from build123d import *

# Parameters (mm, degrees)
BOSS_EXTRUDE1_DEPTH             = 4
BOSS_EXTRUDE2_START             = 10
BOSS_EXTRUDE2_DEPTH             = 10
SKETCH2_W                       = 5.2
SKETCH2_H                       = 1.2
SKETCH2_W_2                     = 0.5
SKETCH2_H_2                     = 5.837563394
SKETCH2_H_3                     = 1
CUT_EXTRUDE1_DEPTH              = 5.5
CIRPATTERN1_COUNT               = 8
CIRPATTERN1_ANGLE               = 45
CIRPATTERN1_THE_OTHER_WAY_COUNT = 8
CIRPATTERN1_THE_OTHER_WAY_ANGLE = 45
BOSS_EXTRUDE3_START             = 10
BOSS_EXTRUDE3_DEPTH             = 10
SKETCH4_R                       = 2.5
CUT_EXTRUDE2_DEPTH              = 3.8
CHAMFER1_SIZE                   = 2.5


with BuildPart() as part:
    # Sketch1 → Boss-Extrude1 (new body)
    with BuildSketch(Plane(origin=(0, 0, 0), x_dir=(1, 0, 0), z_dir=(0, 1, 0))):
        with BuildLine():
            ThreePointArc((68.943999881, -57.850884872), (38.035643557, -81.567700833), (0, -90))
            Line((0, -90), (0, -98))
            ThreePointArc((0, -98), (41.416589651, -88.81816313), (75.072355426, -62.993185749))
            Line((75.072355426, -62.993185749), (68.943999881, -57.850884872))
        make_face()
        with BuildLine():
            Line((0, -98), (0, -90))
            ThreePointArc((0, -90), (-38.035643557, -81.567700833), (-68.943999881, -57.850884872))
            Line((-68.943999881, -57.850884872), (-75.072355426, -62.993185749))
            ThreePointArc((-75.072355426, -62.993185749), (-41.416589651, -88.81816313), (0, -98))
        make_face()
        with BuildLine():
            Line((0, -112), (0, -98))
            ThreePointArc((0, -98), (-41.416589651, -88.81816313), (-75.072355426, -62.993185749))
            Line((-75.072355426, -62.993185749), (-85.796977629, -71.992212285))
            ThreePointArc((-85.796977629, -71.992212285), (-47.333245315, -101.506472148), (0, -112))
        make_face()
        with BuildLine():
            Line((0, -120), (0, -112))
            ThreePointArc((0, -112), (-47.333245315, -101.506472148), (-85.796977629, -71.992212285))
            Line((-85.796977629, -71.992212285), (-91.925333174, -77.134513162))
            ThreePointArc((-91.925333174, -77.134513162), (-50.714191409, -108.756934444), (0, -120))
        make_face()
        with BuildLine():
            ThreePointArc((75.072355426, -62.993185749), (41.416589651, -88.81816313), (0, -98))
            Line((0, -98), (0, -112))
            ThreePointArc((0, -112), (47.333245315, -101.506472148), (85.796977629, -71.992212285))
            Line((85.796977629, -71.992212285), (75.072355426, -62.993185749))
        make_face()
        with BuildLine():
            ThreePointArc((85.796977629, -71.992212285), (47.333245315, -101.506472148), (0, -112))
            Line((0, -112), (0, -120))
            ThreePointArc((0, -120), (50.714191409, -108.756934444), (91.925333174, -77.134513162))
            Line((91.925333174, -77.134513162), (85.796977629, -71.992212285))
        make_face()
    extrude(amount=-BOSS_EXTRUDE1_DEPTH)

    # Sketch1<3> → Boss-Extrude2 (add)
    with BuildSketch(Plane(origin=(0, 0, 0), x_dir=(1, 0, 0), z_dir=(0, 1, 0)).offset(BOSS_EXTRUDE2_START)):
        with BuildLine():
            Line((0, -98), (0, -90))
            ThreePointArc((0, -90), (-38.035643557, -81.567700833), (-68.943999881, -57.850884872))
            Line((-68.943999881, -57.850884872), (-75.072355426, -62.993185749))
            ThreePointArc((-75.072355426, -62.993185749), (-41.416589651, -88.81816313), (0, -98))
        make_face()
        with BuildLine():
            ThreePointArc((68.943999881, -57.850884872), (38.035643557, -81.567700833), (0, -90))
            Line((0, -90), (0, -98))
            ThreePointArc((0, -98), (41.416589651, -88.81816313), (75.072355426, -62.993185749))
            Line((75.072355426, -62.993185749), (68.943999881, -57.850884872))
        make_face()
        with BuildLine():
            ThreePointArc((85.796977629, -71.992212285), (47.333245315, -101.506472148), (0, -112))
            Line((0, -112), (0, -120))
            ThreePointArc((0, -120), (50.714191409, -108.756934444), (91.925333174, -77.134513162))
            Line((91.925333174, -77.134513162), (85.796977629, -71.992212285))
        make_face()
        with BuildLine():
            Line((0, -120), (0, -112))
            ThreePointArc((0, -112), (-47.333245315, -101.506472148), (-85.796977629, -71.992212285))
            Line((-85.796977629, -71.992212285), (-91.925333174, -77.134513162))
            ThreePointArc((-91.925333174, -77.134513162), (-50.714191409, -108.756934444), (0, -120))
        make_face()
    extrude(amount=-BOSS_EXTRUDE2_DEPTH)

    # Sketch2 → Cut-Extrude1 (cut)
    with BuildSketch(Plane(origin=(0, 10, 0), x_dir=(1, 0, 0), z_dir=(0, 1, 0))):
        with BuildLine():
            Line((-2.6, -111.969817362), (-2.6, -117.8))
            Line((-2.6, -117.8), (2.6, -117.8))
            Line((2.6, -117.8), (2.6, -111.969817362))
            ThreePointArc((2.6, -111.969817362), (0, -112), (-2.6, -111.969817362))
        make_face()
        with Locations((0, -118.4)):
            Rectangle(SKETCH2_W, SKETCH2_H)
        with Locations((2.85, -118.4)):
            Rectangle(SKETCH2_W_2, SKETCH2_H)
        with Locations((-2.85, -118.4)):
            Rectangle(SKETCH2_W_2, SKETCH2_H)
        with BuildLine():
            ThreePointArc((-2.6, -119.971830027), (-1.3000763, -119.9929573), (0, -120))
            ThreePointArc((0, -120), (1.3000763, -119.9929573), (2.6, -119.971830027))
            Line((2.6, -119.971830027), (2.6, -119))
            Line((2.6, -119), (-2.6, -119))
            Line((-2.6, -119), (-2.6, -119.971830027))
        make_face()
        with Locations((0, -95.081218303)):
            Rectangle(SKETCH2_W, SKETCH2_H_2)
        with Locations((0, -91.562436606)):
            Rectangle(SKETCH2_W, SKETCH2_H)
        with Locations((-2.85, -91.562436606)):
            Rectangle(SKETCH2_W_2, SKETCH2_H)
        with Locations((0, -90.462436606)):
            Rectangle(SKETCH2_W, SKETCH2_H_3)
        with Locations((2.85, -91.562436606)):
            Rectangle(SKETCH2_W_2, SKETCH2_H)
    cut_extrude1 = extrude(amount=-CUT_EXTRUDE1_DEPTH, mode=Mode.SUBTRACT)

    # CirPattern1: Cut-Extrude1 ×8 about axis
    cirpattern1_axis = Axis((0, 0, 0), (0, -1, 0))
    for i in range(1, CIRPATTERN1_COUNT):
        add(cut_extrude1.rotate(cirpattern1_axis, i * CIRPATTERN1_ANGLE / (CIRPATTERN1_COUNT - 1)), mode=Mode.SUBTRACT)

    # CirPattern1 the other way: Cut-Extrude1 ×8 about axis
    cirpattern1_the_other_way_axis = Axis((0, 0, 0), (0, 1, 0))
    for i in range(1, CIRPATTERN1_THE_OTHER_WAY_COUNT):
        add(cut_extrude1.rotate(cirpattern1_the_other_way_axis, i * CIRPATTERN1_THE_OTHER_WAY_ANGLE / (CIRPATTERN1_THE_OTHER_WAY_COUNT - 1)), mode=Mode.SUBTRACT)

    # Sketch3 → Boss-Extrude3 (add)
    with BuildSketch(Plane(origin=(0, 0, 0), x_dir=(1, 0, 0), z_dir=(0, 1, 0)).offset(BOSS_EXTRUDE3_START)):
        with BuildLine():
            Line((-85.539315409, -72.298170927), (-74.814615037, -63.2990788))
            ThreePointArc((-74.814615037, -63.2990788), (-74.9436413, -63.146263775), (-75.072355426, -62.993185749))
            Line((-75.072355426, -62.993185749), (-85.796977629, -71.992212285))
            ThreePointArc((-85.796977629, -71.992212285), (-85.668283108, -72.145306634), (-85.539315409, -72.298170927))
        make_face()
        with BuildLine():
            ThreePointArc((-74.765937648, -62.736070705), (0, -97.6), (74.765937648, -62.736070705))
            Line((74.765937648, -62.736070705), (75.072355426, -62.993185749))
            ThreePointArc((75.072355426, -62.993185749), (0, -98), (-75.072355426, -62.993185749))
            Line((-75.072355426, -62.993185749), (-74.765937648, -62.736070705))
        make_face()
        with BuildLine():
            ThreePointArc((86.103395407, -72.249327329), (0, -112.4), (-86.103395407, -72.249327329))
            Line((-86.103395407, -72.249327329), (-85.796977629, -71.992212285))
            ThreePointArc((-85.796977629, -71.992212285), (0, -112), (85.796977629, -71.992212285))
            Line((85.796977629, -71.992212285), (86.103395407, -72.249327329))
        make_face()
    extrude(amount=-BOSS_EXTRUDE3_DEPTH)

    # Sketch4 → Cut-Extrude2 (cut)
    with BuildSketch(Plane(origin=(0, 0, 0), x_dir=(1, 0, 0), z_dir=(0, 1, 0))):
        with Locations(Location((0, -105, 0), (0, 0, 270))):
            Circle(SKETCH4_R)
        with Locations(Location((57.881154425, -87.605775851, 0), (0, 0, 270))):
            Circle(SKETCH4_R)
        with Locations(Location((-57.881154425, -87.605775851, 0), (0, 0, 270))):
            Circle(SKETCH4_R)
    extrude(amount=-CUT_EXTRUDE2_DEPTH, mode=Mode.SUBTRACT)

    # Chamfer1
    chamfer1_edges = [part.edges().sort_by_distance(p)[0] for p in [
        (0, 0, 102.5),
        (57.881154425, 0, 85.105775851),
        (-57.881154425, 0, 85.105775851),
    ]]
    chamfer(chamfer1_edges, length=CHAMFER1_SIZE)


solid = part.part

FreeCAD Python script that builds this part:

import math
import FreeCAD as App
import Part
import Sketcher

V = App.Vector
Q = App.Units.Quantity


def edges_at(feature, points):
    """Names of the edges that pass closest to the given points."""
    edges = feature.Shape.Edges
    near = lambda p: min(range(len(edges)), key=lambda i: edges[i].distToShape(Part.Vertex(*p))[0])
    return sorted({f"Edge{near(p) + 1}" for p in points})


def add_polygon(sketch, points):
    """Adds a closed chain of lines whose ends are joined by coincident constraints."""
    first, n = sketch.GeometryCount, len(points)
    for a, b in zip(points, points[1:] + points[:1]):
        sketch.addGeometry(Part.LineSegment(App.Vector(*a, 0), App.Vector(*b, 0)), False)
    for i in range(n):
        sketch.addConstraint(Sketcher.Constraint("Coincident", first + i, 2, first + (i + 1) % n, 1))

doc = App.newDocument("Part")
body = doc.addObject("PartDesign::Body", "Body")

# Sketch on XZ plane
sketch1 = doc.addObject("Sketcher::SketchObject", "Sketch")
body.addObject(sketch1)
sketch1.AttachmentSupport = (doc.XZ_Plane, [""])
sketch1.MapMode = "FlatFace"
sketch1.addGeometry(Part.ArcOfCircle(Part.Circle(V(0, 0, 0), V(0, 0, 1), 90), math.radians(40), math.radians(90)), False)
sketch1.addGeometry(Part.ArcOfCircle(Part.Circle(V(0, 0, 0), V(0, 0, 1), 90), math.radians(90), math.radians(140)), False)
sketch1.addGeometry(Part.LineSegment(V(-69, 58, 0), V(-75, 63, 0)), False)
sketch1.addGeometry(Part.LineSegment(V(-75, 63, 0), V(-86, 72, 0)), False)
sketch1.addGeometry(Part.LineSegment(V(-86, 72, 0), V(-92, 77, 0)), False)
sketch1.addGeometry(Part.ArcOfCircle(Part.Circle(V(0, 0, 0), V(0, 0, 1), 120), math.radians(90), math.radians(140)), False)
sketch1.addGeometry(Part.ArcOfCircle(Part.Circle(V(0, 0, 0), V(0, 0, 1), 120), math.radians(40), math.radians(90)), False)
sketch1.addGeometry(Part.LineSegment(V(92, 77, 0), V(86, 72, 0)), False)
sketch1.addGeometry(Part.LineSegment(V(86, 72, 0), V(75, 63, 0)), False)
sketch1.addGeometry(Part.LineSegment(V(75, 63, 0), V(69, 58, 0)), False)
sketch1.addConstraint(Sketcher.Constraint("Tangent", 0, 2, 1, 1))
sketch1.addConstraint(Sketcher.Constraint("Coincident", 1, 2, 2, 1))
sketch1.addConstraint(Sketcher.Constraint("Coincident", 2, 2, 3, 1))
sketch1.addConstraint(Sketcher.Constraint("Coincident", 3, 2, 4, 1))
sketch1.addConstraint(Sketcher.Constraint("Coincident", 4, 2, 5, 2))
sketch1.addConstraint(Sketcher.Constraint("Tangent", 5, 1, 6, 2))
sketch1.addConstraint(Sketcher.Constraint("Coincident", 6, 1, 7, 1))
sketch1.addConstraint(Sketcher.Constraint("Coincident", 7, 2, 8, 1))
sketch1.addConstraint(Sketcher.Constraint("Coincident", 8, 2, 9, 1))
sketch1.addConstraint(Sketcher.Constraint("Coincident", 9, 2, 0, 1))
sketch1.addConstraint(Sketcher.Constraint("Coincident", 0, 3, -1, 1))
sketch1.addConstraint(Sketcher.Constraint("Coincident", 5, 3, -1, 1))
sketch1.addConstraint(Sketcher.Constraint("Equal", 0, 1))
sketch1.addConstraint(Sketcher.Constraint("Equal", 5, 6))
sketch1.addConstraint(Sketcher.Constraint("Symmetric", 3, 2, 7, 2, -2))
sketch1.addConstraint(Sketcher.Constraint("Symmetric", 2, 2, 8, 2, -2))
sketch1.addConstraint(Sketcher.Constraint("PointOnObject", 0, 2, -2))
sketch1.addConstraint(Sketcher.Constraint("PointOnObject", 5, 1, -2))
sketch1.addConstraint(Sketcher.Constraint("Parallel", 2, 3))
sketch1.addConstraint(Sketcher.Constraint("Parallel", 3, 4))
sketch1.addConstraint(Sketcher.Constraint("Parallel", 7, 8))
sketch1.addConstraint(Sketcher.Constraint("Parallel", 8, 9))
sketch1.addConstraint(Sketcher.Constraint("Equal", 2, 4))
sketch1.addConstraint(Sketcher.Constraint("Radius", 0, 90.0))
sketch1.addConstraint(Sketcher.Constraint("Radius", 5, 120.0))
sketch1.addConstraint(Sketcher.Constraint("Angle", 2, Q("140 deg")))
sketch1.addConstraint(Sketcher.Constraint("Distance", 2, 8.0))
sketch1.addConstraint(Sketcher.Constraint("DistanceX", 1, 2, -1, 1, 68.944))
pad1 = doc.addObject("PartDesign::Pad", "Pad")
body.addObject(pad1)
pad1.Profile = sketch1
pad1.Length = 4

# Sketch on XZ plane
sketch2 = doc.addObject("Sketcher::SketchObject", "Sketch001")
body.addObject(sketch2)
sketch2.AttachmentSupport = (doc.XZ_Plane, [""])
sketch2.MapMode = "FlatFace"
sketch2.AttachmentOffset = App.Placement(V(0, 0, -10), App.Rotation())
sketch2.addGeometry(Part.ArcOfCircle(Part.Circle(V(0, 0, 0), V(0, 0, 1), 90), math.radians(90), math.radians(140)), False)
sketch2.addGeometry(Part.LineSegment(V(-69, 58, 0), V(-75, 63, 0)), False)
sketch2.addGeometry(Part.ArcOfCircle(Part.Circle(V(0, 0, 0), V(0, 0, 1), 98), math.radians(90), math.radians(140)), False)
sketch2.addGeometry(Part.ArcOfCircle(Part.Circle(V(0, 0, 0), V(0, 0, 1), 98), math.radians(40), math.radians(90)), False)
sketch2.addGeometry(Part.LineSegment(V(75, 63, 0), V(69, 58, 0)), False)
sketch2.addGeometry(Part.ArcOfCircle(Part.Circle(V(0, 0, 0), V(0, 0, 1), 90), math.radians(40), math.radians(90)), False)
sketch2.addGeometry(Part.ArcOfCircle(Part.Circle(V(0, 0, 0), V(0, 0, 1), 112), math.radians(40), math.radians(90)), False)
sketch2.addGeometry(Part.ArcOfCircle(Part.Circle(V(0, 0, 0), V(0, 0, 1), 112), math.radians(90), math.radians(140)), False)
sketch2.addGeometry(Part.LineSegment(V(-86, 72, 0), V(-92, 77, 0)), False)
sketch2.addGeometry(Part.ArcOfCircle(Part.Circle(V(0, 0, 0), V(0, 0, 1), 120), math.radians(90), math.radians(140)), False)
sketch2.addGeometry(Part.ArcOfCircle(Part.Circle(V(0, 0, 0), V(0, 0, 1), 120), math.radians(40), math.radians(90)), False)
sketch2.addGeometry(Part.LineSegment(V(92, 77, 0), V(86, 72, 0)), False)
sketch2.addConstraint(Sketcher.Constraint("Coincident", 0, 2, 1, 1))
sketch2.addConstraint(Sketcher.Constraint("Coincident", 1, 2, 2, 2))
sketch2.addConstraint(Sketcher.Constraint("Tangent", 2, 1, 3, 2))
sketch2.addConstraint(Sketcher.Constraint("Coincident", 3, 1, 4, 1))
sketch2.addConstraint(Sketcher.Constraint("Coincident", 4, 2, 5, 1))
sketch2.addConstraint(Sketcher.Constraint("Tangent", 5, 2, 0, 1))
sketch2.addConstraint(Sketcher.Constraint("Tangent", 6, 2, 7, 1))
sketch2.addConstraint(Sketcher.Constraint("Coincident", 7, 2, 8, 1))
sketch2.addConstraint(Sketcher.Constraint("Coincident", 8, 2, 9, 2))
sketch2.addConstraint(Sketcher.Constraint("Tangent", 9, 1, 10, 2))
sketch2.addConstraint(Sketcher.Constraint("Coincident", 10, 1, 11, 1))
sketch2.addConstraint(Sketcher.Constraint("Coincident", 11, 2, 6, 1))
sketch2.addConstraint(Sketcher.Constraint("Coincident", 0, 3, -1, 1))
sketch2.addConstraint(Sketcher.Constraint("Coincident", 2, 3, -1, 1))
sketch2.addConstraint(Sketcher.Constraint("Coincident", 6, 3, -1, 1))
sketch2.addConstraint(Sketcher.Constraint("Coincident", 9, 3, -1, 1))
sketch2.addConstraint(Sketcher.Constraint("Equal", 2, 3))
sketch2.addConstraint(Sketcher.Constraint("Equal", 0, 5))
sketch2.addConstraint(Sketcher.Constraint("Equal", 6, 7))
sketch2.addConstraint(Sketcher.Constraint("Equal", 9, 10))
sketch2.addConstraint(Sketcher.Constraint("PointOnObject", 2, 1, -2))
sketch2.addConstraint(Sketcher.Constraint("PointOnObject", 5, 2, -2))
sketch2.addConstraint(Sketcher.Constraint("PointOnObject", 6, 2, -2))
sketch2.addConstraint(Sketcher.Constraint("PointOnObject", 9, 1, -2))
sketch2.addConstraint(Sketcher.Constraint("Parallel", 1, 8))
sketch2.addConstraint(Sketcher.Constraint("Parallel", 4, 11))
sketch2.addConstraint(Sketcher.Constraint("Horizontal", 1, 2, 3, 1))
sketch2.addConstraint(Sketcher.Constraint("Horizontal", 0, 2, 4, 2))
sketch2.addConstraint(Sketcher.Constraint("Horizontal", 8, 2, 10, 1))
sketch2.addConstraint(Sketcher.Constraint("Equal", 4, 8))
sketch2.addConstraint(Sketcher.Constraint("Radius", 0, 90.0))
sketch2.addConstraint(Sketcher.Constraint("Radius", 2, 98.0))
sketch2.addConstraint(Sketcher.Constraint("Radius", 6, 112.0))
sketch2.addConstraint(Sketcher.Constraint("Angle", 1, Q("140 deg")))
sketch2.addConstraint(Sketcher.Constraint("DistanceX", 0, 2, -1, 1, 68.944))
sketch2.addConstraint(Sketcher.Constraint("DistanceY", 0, 2, 8, 2, 19.283628))
pad2 = doc.addObject("PartDesign::Pad", "Pad001")
body.addObject(pad2)
pad2.Profile = sketch2
pad2.Length = 10

# Sketch on XZ plane
sketch3 = doc.addObject("Sketcher::SketchObject", "Sketch002")
body.addObject(sketch3)
sketch3.AttachmentSupport = (doc.XZ_Plane, [""])
sketch3.MapMode = "FlatFace"
sketch3.AttachmentOffset = App.Placement(V(0, 0, -10), App.Rotation())
sketch3.addGeometry(Part.LineSegment(V(-2.6, 112, 0), V(-2.6, 117.8, 0)), False)  # 0
sketch3.addGeometry(Part.LineSegment(V(-2.6, 117.8, 0), V(-3.1, 117.8, 0)), False)  # 1
sketch3.addGeometry(Part.LineSegment(V(-3.1, 117.8, 0), V(-3.1, 119, 0)), False)  # 2
sketch3.addGeometry(Part.LineSegment(V(-3.1, 119, 0), V(-2.6, 119, 0)), False)  # 3
sketch3.addGeometry(Part.LineSegment(V(-2.6, 119, 0), V(-2.6, 120, 0)), False)  # 4
sketch3.addGeometry(Part.ArcOfCircle(Part.Circle(V(0, 0, 0), V(0, 0, 1), 120), math.radians(90), math.radians(91.24)), False)  # 5
sketch3.addGeometry(Part.ArcOfCircle(Part.Circle(V(0, 0, 0), V(0, 0, 1), 120), math.radians(88.76), math.radians(90)), False)  # 6
sketch3.addGeometry(Part.LineSegment(V(2.6, 120, 0), V(2.6, 119, 0)), False)  # 7
sketch3.addGeometry(Part.LineSegment(V(2.6, 119, 0), V(3.1, 119, 0)), False)  # 8
sketch3.addGeometry(Part.LineSegment(V(3.1, 119, 0), V(3.1, 117.8, 0)), False)  # 9
sketch3.addGeometry(Part.LineSegment(V(3.1, 117.8, 0), V(2.6, 117.8, 0)), False)  # 10
sketch3.addGeometry(Part.LineSegment(V(2.6, 117.8, 0), V(2.6, 112, 0)), False)  # 11
sketch3.addGeometry(Part.ArcOfCircle(Part.Circle(V(0, 0, 0), V(0, 0, 1), 112), math.radians(88.67), math.radians(91.33)), False)  # 12
add_polygon(sketch3, [(-2.6, 98), (2.6, 98), (2.6, 92.2), (3.1, 92.2), (3.1, 91), (2.6, 91), (2.6, 90), (-2.6, 90), (-2.6, 91), (-3.1, 91), (-3.1, 92.2), (-2.6, 92.2)])  # lines 13-24
sketch3.addConstraint(Sketcher.Constraint("Coincident", 0, 2, 1, 1))
sketch3.addConstraint(Sketcher.Constraint("Coincident", 1, 2, 2, 1))
sketch3.addConstraint(Sketcher.Constraint("Coincident", 2, 2, 3, 1))
sketch3.addConstraint(Sketcher.Constraint("Coincident", 3, 2, 4, 1))
sketch3.addConstraint(Sketcher.Constraint("Coincident", 4, 2, 5, 2))
sketch3.addConstraint(Sketcher.Constraint("Tangent", 5, 1, 6, 2))
sketch3.addConstraint(Sketcher.Constraint("Coincident", 6, 1, 7, 1))
sketch3.addConstraint(Sketcher.Constraint("Coincident", 7, 2, 8, 1))
sketch3.addConstraint(Sketcher.Constraint("Coincident", 8, 2, 9, 1))
sketch3.addConstraint(Sketcher.Constraint("Coincident", 9, 2, 10, 1))
sketch3.addConstraint(Sketcher.Constraint("Coincident", 10, 2, 11, 1))
sketch3.addConstraint(Sketcher.Constraint("Coincident", 11, 2, 12, 1))
sketch3.addConstraint(Sketcher.Constraint("Coincident", 12, 2, 0, 1))
sketch3.addConstraint(Sketcher.Constraint("Vertical", 0))
sketch3.addConstraint(Sketcher.Constraint("Horizontal", 1))
sketch3.addConstraint(Sketcher.Constraint("Vertical", 2))
sketch3.addConstraint(Sketcher.Constraint("Horizontal", 3))
sketch3.addConstraint(Sketcher.Constraint("Vertical", 4))
sketch3.addConstraint(Sketcher.Constraint("Vertical", 7))
sketch3.addConstraint(Sketcher.Constraint("Horizontal", 8))
sketch3.addConstraint(Sketcher.Constraint("Vertical", 9))
sketch3.addConstraint(Sketcher.Constraint("Horizontal", 10))
sketch3.addConstraint(Sketcher.Constraint("Vertical", 11))
sketch3.addConstraint(Sketcher.Constraint("Horizontal", 13))
sketch3.addConstraint(Sketcher.Constraint("Vertical", 14))
sketch3.addConstraint(Sketcher.Constraint("Horizontal", 15))
sketch3.addConstraint(Sketcher.Constraint("Vertical", 16))
sketch3.addConstraint(Sketcher.Constraint("Horizontal", 17))
sketch3.addConstraint(Sketcher.Constraint("Vertical", 18))
sketch3.addConstraint(Sketcher.Constraint("Horizontal", 19))
sketch3.addConstraint(Sketcher.Constraint("Vertical", 20))
sketch3.addConstraint(Sketcher.Constraint("Horizontal", 21))
sketch3.addConstraint(Sketcher.Constraint("Vertical", 22))
sketch3.addConstraint(Sketcher.Constraint("Horizontal", 23))
sketch3.addConstraint(Sketcher.Constraint("Vertical", 24))
sketch3.addConstraint(Sketcher.Constraint("Coincident", 5, 3, -1, 1))
sketch3.addConstraint(Sketcher.Constraint("Coincident", 12, 3, -1, 1))
sketch3.addConstraint(Sketcher.Constraint("Equal", 5, 6))
sketch3.addConstraint(Sketcher.Constraint("Symmetric", 3, 2, 7, 2, -2))
sketch3.addConstraint(Sketcher.Constraint("Symmetric", 1, 2, 9, 2, -2))
sketch3.addConstraint(Sketcher.Constraint("Symmetric", 17, 2, 20, 2, -2))
sketch3.addConstraint(Sketcher.Constraint("Symmetric", 15, 2, 22, 2, -2))
sketch3.addConstraint(Sketcher.Constraint("PointOnObject", 5, 1, -2))
sketch3.addConstraint(Sketcher.Constraint("Horizontal", 11, 2, 12, 2))
sketch3.addConstraint(Sketcher.Constraint("Vertical", 0, 2, 3, 2))
sketch3.addConstraint(Sketcher.Constraint("Vertical", 11, 2, 13, 2))
sketch3.addConstraint(Sketcher.Constraint("Vertical", 9, 2, 15, 2))
sketch3.addConstraint(Sketcher.Constraint("Vertical", 14, 2, 17, 2))
sketch3.addConstraint(Sketcher.Constraint("Vertical", 20, 2, 23, 2))
sketch3.addConstraint(Sketcher.Constraint("Equal", 9, 16))
sketch3.addConstraint(Sketcher.Constraint("Radius", 12, 112.000001))
sketch3.addConstraint(Sketcher.Constraint("DistanceY", 18, 2, 18, 1, 1.0))
sketch3.addConstraint(Sketcher.Constraint("DistanceX", 1, 2, 1, 1, 0.5))
sketch3.addConstraint(Sketcher.Constraint("DistanceX", 13, 1, 13, 2, 5.2))
sketch3.addConstraint(Sketcher.Constraint("DistanceY", 2, 1, 2, 2, 1.2))
sketch3.addConstraint(Sketcher.Constraint("DistanceY", -1, 1, 2, 2, 119.0))
sketch3.addConstraint(Sketcher.Constraint("DistanceY", -1, 1, 5, 1, 120.0))
sketch3.addConstraint(Sketcher.Constraint("DistanceY", -1, 1, 13, 2, 98.0))
sketch3.addConstraint(Sketcher.Constraint("DistanceY", 14, 2, 14, 1, 5.837563))
pocket1 = doc.addObject("PartDesign::Pocket", "Pocket")
body.addObject(pocket1)
pocket1.Profile = sketch3
pocket1.Length = 5.5
pocket1.Reversed = True
doc.recompute()

polarpattern = doc.addObject("PartDesign::PolarPattern", "PolarPattern")
body.addObject(polarpattern)
polarpattern.Originals = [pocket1]
polarpattern.Axis = (doc.Y_Axis, [""])
polarpattern.Angle = 45
polarpattern.Occurrences = 8
polarpattern.Reversed = True
body.Tip = polarpattern
doc.recompute()

polarpattern2 = doc.addObject("PartDesign::PolarPattern", "PolarPattern001")
body.addObject(polarpattern2)
polarpattern2.Originals = [pocket1]
polarpattern2.Axis = (doc.Y_Axis, [""])
polarpattern2.Angle = 45
polarpattern2.Occurrences = 8
body.Tip = polarpattern2

# Sketch on XZ plane
sketch4 = doc.addObject("Sketcher::SketchObject", "Sketch003")
body.addObject(sketch4)
sketch4.AttachmentSupport = (doc.XZ_Plane, [""])
sketch4.MapMode = "FlatFace"
sketch4.AttachmentOffset = App.Placement(V(0, 0, -10), App.Rotation())
sketch4.addGeometry(Part.LineSegment(V(-85.54, 72.3, 0), V(-74.81, 63.3, 0)), False)
sketch4.addGeometry(Part.ArcOfCircle(Part.Circle(V(0, 0, 0), V(0, 0, 1), 98), math.radians(40), math.radians(140)), False)
sketch4.addGeometry(Part.LineSegment(V(75.07, 62.99, 0), V(74.77, 62.74, 0)), False)
sketch4.addGeometry(Part.ArcOfCircle(Part.Circle(V(0, 0, 0), V(0, 0, 1), 97.6), math.radians(40), math.radians(140)), False)
sketch4.addGeometry(Part.LineSegment(V(-74.77, 62.74, 0), V(-75.07, 62.99, 0)), False)
sketch4.addGeometry(Part.LineSegment(V(-75.07, 62.99, 0), V(-85.8, 71.99, 0)), False)
sketch4.addGeometry(Part.LineSegment(V(-85.8, 71.99, 0), V(-86.1, 72.25, 0)), False)
sketch4.addGeometry(Part.ArcOfCircle(Part.Circle(V(0, 0, 0), V(0, 0, 1), 112.4), math.radians(40), math.radians(140)), False)
sketch4.addGeometry(Part.LineSegment(V(86.1, 72.25, 0), V(85.8, 71.99, 0)), False)
sketch4.addGeometry(Part.ArcOfCircle(Part.Circle(V(0, 0, 0), V(0, 0, 1), 112), math.radians(40), math.radians(140)), False)
sketch4.addConstraint(Sketcher.Constraint("Coincident", 0, 2, 1, 2))
sketch4.addConstraint(Sketcher.Constraint("Coincident", 1, 1, 2, 1))
sketch4.addConstraint(Sketcher.Constraint("Coincident", 2, 2, 3, 1))
sketch4.addConstraint(Sketcher.Constraint("Coincident", 3, 2, 4, 1))
sketch4.addConstraint(Sketcher.Constraint("Coincident", 4, 2, 5, 1))
sketch4.addConstraint(Sketcher.Constraint("Coincident", 5, 2, 6, 1))
sketch4.addConstraint(Sketcher.Constraint("Coincident", 6, 2, 7, 2))
sketch4.addConstraint(Sketcher.Constraint("Coincident", 7, 1, 8, 1))
sketch4.addConstraint(Sketcher.Constraint("Coincident", 8, 2, 9, 1))
sketch4.addConstraint(Sketcher.Constraint("Coincident", 9, 2, 0, 1))
sketch4.addConstraint(Sketcher.Constraint("Coincident", 1, 3, -1, 1))
sketch4.addConstraint(Sketcher.Constraint("Coincident", 3, 3, -1, 1))
sketch4.addConstraint(Sketcher.Constraint("Coincident", 7, 3, -1, 1))
sketch4.addConstraint(Sketcher.Constraint("Coincident", 9, 3, -1, 1))
sketch4.addConstraint(Sketcher.Constraint("Symmetric", 1, 1, 4, 2, -2))
sketch4.addConstraint(Sketcher.Constraint("Symmetric", 5, 2, 8, 2, -2))
sketch4.addConstraint(Sketcher.Constraint("Parallel", 0, 4))
sketch4.addConstraint(Sketcher.Constraint("Parallel", 4, 5))
sketch4.addConstraint(Sketcher.Constraint("Parallel", 5, 6))
sketch4.addConstraint(Sketcher.Constraint("Parallel", 2, 8))
sketch4.addConstraint(Sketcher.Constraint("Horizontal", 2, 2, 3, 2))
sketch4.addConstraint(Sketcher.Constraint("Equal", 4, 6))
sketch4.addConstraint(Sketcher.Constraint("Radius", 1, 98.0))
sketch4.addConstraint(Sketcher.Constraint("Radius", 9, 112.0))
sketch4.addConstraint(Sketcher.Constraint("Radius", 3, 97.6))
sketch4.addConstraint(Sketcher.Constraint("Angle", 0, Q("-40 deg")))
sketch4.addConstraint(Sketcher.Constraint("DistanceY", 3, 2, 9, 2, 9.5621))
sketch4.addConstraint(Sketcher.Constraint("DistanceY", -1, 1, 0, 2, 63.299079))
pad3 = doc.addObject("PartDesign::Pad", "Pad002")
body.addObject(pad3)
pad3.Profile = sketch4
pad3.Length = 10

# Sketch on XZ plane
sketch5 = doc.addObject("Sketcher::SketchObject", "Sketch004")
body.addObject(sketch5)
sketch5.AttachmentSupport = (doc.XZ_Plane, [""])
sketch5.MapMode = "FlatFace"
sketch5.addGeometry(Part.Circle(V(0, 105, 0), V(0, 0, 1), 2.5), False)
sketch5.addGeometry(Part.Circle(V(57.9, 87.6, 0), V(0, 0, 1), 2.5), False)
sketch5.addGeometry(Part.Circle(V(-57.9, 87.6, 0), V(0, 0, 1), 2.5), False)
sketch5.addConstraint(Sketcher.Constraint("Equal", 0, 1))
sketch5.addConstraint(Sketcher.Constraint("Equal", 1, 2))
sketch5.addConstraint(Sketcher.Constraint("Symmetric", 1, 3, 2, 3, -2))
sketch5.addConstraint(Sketcher.Constraint("PointOnObject", 0, 3, -2))
sketch5.addConstraint(Sketcher.Constraint("Diameter", 0, 5.0))
sketch5.addConstraint(Sketcher.Constraint("DistanceY", -1, 1, 0, 3, 105.0))
sketch5.addConstraint(Sketcher.Constraint("DistanceX", 2, 3, 1, 3, 115.762309))
sketch5.addConstraint(Sketcher.Constraint("DistanceY", -1, 1, 1, 3, 87.605776))
pocket2 = doc.addObject("PartDesign::Pocket", "Pocket001")
body.addObject(pocket2)
pocket2.Profile = sketch5
pocket2.Length = 3.8
pocket2.Reversed = True
doc.recompute()

chamfer = doc.addObject("PartDesign::Chamfer", "Chamfer")
body.addObject(chamfer)
chamfer.Base = (pocket2, edges_at(pocket2, [(0, 0, 102.5), (57.881, 0, 85.106), (-57.881, 0, 85.106)]))
chamfer.Size = 2.5

doc.recompute()
